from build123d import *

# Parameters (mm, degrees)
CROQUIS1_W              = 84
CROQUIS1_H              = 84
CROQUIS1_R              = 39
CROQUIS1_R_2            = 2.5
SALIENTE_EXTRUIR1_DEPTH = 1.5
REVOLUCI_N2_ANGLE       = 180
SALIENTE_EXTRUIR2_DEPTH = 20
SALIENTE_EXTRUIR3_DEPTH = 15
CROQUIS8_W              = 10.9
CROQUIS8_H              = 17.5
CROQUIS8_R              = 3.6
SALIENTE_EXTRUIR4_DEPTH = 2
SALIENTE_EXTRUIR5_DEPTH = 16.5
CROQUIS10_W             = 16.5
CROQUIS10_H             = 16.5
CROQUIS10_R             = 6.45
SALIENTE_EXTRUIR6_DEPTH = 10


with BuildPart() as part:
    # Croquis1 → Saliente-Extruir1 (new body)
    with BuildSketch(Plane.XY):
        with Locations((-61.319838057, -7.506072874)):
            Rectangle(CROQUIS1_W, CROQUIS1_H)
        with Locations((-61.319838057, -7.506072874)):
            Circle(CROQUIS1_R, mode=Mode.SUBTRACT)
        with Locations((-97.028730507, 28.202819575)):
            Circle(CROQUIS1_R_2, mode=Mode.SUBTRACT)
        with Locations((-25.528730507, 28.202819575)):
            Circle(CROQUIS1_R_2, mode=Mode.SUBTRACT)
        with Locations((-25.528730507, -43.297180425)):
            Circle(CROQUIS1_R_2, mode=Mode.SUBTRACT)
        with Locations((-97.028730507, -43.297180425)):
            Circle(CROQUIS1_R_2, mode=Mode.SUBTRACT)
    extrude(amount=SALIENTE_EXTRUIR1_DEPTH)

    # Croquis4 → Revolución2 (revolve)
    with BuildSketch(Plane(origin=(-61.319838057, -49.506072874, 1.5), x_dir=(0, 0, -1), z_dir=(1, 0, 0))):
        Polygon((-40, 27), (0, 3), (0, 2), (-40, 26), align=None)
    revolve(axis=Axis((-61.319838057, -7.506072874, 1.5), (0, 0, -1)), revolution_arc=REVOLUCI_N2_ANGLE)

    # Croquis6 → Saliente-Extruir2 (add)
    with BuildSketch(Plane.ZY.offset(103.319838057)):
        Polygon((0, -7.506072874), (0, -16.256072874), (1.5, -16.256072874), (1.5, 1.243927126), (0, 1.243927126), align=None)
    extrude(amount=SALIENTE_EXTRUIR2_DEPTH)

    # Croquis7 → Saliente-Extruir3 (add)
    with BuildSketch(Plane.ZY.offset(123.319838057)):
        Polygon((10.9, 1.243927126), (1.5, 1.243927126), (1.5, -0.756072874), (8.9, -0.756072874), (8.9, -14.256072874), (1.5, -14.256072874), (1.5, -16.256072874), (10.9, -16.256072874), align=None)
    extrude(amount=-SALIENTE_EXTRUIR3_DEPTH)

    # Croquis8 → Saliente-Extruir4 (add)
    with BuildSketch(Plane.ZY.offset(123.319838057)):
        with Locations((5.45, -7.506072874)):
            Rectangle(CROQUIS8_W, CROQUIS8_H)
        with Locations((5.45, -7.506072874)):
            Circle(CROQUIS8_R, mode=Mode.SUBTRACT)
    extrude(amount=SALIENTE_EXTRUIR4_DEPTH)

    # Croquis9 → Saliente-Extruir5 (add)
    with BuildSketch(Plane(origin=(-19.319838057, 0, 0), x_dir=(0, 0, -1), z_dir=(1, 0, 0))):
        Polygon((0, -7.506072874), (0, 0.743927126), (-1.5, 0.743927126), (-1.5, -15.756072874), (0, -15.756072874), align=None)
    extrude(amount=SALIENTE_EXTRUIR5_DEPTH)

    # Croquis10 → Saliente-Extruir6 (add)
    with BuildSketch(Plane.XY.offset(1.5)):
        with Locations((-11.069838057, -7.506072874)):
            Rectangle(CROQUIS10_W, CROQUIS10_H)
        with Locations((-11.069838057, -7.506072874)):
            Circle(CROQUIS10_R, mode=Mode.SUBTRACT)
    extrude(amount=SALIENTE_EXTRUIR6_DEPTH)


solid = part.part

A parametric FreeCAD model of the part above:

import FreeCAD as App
import Part
import Sketcher
from FreeCAD import Vector


def add_polygon(sketch, points):
    """Adds a closed chain of lines whose ends are joined by coincident constraints."""
    first, n = sketch.GeometryCount, len(points)
    for a, b in zip(points, points[1:] + points[:1]):
        sketch.addGeometry(Part.LineSegment(App.Vector(*a, 0), App.Vector(*b, 0)), False)
    for i in range(n):
        sketch.addConstraint(Sketcher.Constraint("Coincident", first + i, 2, first + (i + 1) % n, 1))

doc = App.newDocument("Part")
body = doc.addObject("PartDesign::Body", "Body")

# Sketch on XY plane
sketch1 = doc.addObject("Sketcher::SketchObject", "Sketch")
body.addObject(sketch1)
sketch1.AttachmentSupport = (doc.XY_Plane, [""])
sketch1.MapMode = "FlatFace"
add_polygon(sketch1, [(-103.3, 34.5), (-103.3, -49.5), (-19.3, -49.5), (-19.3, 34.5)])  # lines 0-3
sketch1.addGeometry(Part.Circle(Vector(-97, -43.3, 0), Vector(0, 0, 1), 2.5), False)  # 4
sketch1.addGeometry(Part.Circle(Vector(-25.5, -43.3, 0), Vector(0, 0, 1), 2.5), False)  # 5
sketch1.addGeometry(Part.Circle(Vector(-97, 28.2, 0), Vector(0, 0, 1), 2.5), False)  # 6
sketch1.addGeometry(Part.Circle(Vector(-61.3, -7.5, 0), Vector(0, 0, 1), 39), False)  # 7
sketch1.addGeometry(Part.Circle(Vector(-25.5, 28.2, 0), Vector(0, 0, 1), 2.5), False)  # 8
sketch1.addConstraint(Sketcher.Constraint("Vertical", 0))
sketch1.addConstraint(Sketcher.Constraint("Horizontal", 1))
sketch1.addConstraint(Sketcher.Constraint("Vertical", 2))
sketch1.addConstraint(Sketcher.Constraint("Horizontal", 3))
sketch1.addConstraint(Sketcher.Constraint("Equal", 4, 5))
sketch1.addConstraint(Sketcher.Constraint("Equal", 5, 6))
sketch1.addConstraint(Sketcher.Constraint("Equal", 6, 8))
sketch1.addConstraint(Sketcher.Constraint("Horizontal", 4, 3, 5, 3))
sketch1.addConstraint(Sketcher.Constraint("Horizontal", 6, 3, 8, 3))
sketch1.addConstraint(Sketcher.Constraint("Vertical", 4, 3, 6, 3))
sketch1.addConstraint(Sketcher.Constraint("Vertical", 5, 3, 8, 3))
sketch1.addConstraint(Sketcher.Constraint("Equal", 3, 0))
sketch1.addConstraint(Sketcher.Constraint("Diameter", 4, 5.0))
sketch1.addConstraint(Sketcher.Constraint("Diameter", 7, 78.0))
sketch1.addConstraint(Sketcher.Constraint("DistanceX", 1, 1, 1, 2, 84.0))
sketch1.addConstraint(Sketcher.Constraint("DistanceX", 0, 2, 7, 3, 42.0))
sketch1.addConstraint(Sketcher.Constraint("DistanceY", 0, 2, 7, 3, 42.0))
sketch1.addConstraint(Sketcher.Constraint("DistanceX", 4, 3, 5, 3, 71.5))
sketch1.addConstraint(Sketcher.Constraint("DistanceY", 4, 3, 6, 3, 71.5))
sketch1.addConstraint(Sketcher.Constraint("DistanceX", 4, 3, -1, 1, 97.028731))
sketch1.addConstraint(Sketcher.Constraint("DistanceY", 4, 3, -1, 1, 43.29718))
sketch1.addConstraint(Sketcher.Constraint("DistanceX", 7, 3, -1, 1, 61.319838))
sketch1.addConstraint(Sketcher.Constraint("DistanceY", 7, 3, -1, 1, 7.506073))
pad1 = doc.addObject("PartDesign::Pad", "Pad")
body.addObject(pad1)
pad1.Profile = sketch1
pad1.Length = 1.5

# Sketch on YZ plane
sketch2 = doc.addObject("Sketcher::SketchObject", "Sketch001")
body.addObject(sketch2)
sketch2.AttachmentSupport = (doc.YZ_Plane, [""])
sketch2.MapMode = "FlatFace"
sketch2.AttachmentOffset = App.Placement(Vector(0, 0, -61.319838), App.Rotation())
add_polygon(sketch2, [(-46.5, 1.5), (-22.5, 41.5), (-23.5, 41.5), (-47.5, 1.5)])  # lines 0-3
sketch2.addGeometry(Part.LineSegment(Vector(-7.5, 41.5, 0), Vector(-7.5, 1.5, 0)), True)  # axis
sketch2.addConstraint(Sketcher.Constraint("Horizontal", 1))
sketch2.addConstraint(Sketcher.Constraint("Horizontal", 3))
sketch2.addConstraint(Sketcher.Constraint("Vertical", 4))
sketch2.addConstraint(Sketcher.Constraint("Parallel", 0, 2))
sketch2.addConstraint(Sketcher.Constraint("Horizontal", 1, 2, 4, 1))
sketch2.addConstraint(Sketcher.Constraint("Horizontal", 3, 2, 4, 2))
sketch2.addConstraint(Sketcher.Constraint("DistanceX", 1, 2, 1, 1, 1.0))
sketch2.addConstraint(Sketcher.Constraint("DistanceY", 4, 2, 4, 1, 40.0))
sketch2.addConstraint(Sketcher.Constraint("DistanceX", 2, 2, 1, 2, 24.0))
sketch2.addConstraint(Sketcher.Constraint("DistanceX", 0, 2, 4, 1, 15.0))
sketch2.addConstraint(Sketcher.Constraint("DistanceY", -1, 1, 0, 2, 41.5))
sketch2.addConstraint(Sketcher.Constraint("DistanceX", 0, 2, -1, 1, 22.506073))
revolution = doc.addObject("PartDesign::Revolution", "Revolution")
body.addObject(revolution)
revolution.Profile = sketch2
revolution.ReferenceAxis = (sketch2, ["Axis0"])
revolution.Angle = 180

# Sketch on YZ plane
sketch3 = doc.addObject("Sketcher::SketchObject", "Sketch002")
body.addObject(sketch3)
sketch3.AttachmentSupport = (doc.YZ_Plane, [""])
sketch3.MapMode = "FlatFace"
sketch3.AttachmentOffset = App.Placement(Vector(0, 0, -103.319838), App.Rotation())
add_polygon(sketch3, [(-16.3, 0), (-16.3, 1.5), (1.2, 1.5), (1.2, 0)])  # lines 0-3
sketch3.addConstraint(Sketcher.Constraint("Vertical", 0))
sketch3.addConstraint(Sketcher.Constraint("Horizontal", 1))
sketch3.addConstraint(Sketcher.Constraint("Vertical", 2))
sketch3.addConstraint(Sketcher.Constraint("Horizontal", 3))
sketch3.addConstraint(Sketcher.Constraint("PointOnObject", 2, 2, -1))
sketch3.addConstraint(Sketcher.Constraint("DistanceX", 1, 1, 1, 2, 17.5))
sketch3.addConstraint(Sketcher.Constraint("DistanceY", 0, 1, 0, 2, 1.5))
sketch3.addConstraint(Sketcher.Constraint("DistanceX", 0, 2, -1, 1, 16.256073))
pad2 = doc.addObject("PartDesign::Pad", "Pad001")
body.addObject(pad2)
pad2.Profile = sketch3
pad2.Length = 20
pad2.Reversed = True

# Sketch on YZ plane
sketch4 = doc.addObject("Sketcher::SketchObject", "Sketch003")
body.addObject(sketch4)
sketch4.AttachmentSupport = (doc.YZ_Plane, [""])
sketch4.MapMode = "FlatFace"
sketch4.AttachmentOffset = App.Placement(Vector(0, 0, -123.319838), App.Rotation())
add_polygon(sketch4, [(1.2, 10.9), (1.2, 1.5), (-0.8, 1.5), (-0.8, 8.9), (-14.3, 8.9), (-14.3, 1.5), (-16.3, 1.5), (-16.3, 10.9)])  # lines 0-7
sketch4.addConstraint(Sketcher.Constraint("Vertical", 0))
sketch4.addConstraint(Sketcher.Constraint("Horizontal", 1))
sketch4.addConstraint(Sketcher.Constraint("Vertical", 2))
sketch4.addConstraint(Sketcher.Constraint("Horizontal", 3))
sketch4.addConstraint(Sketcher.Constraint("Vertical", 4))
sketch4.addConstraint(Sketcher.Constraint("Horizontal", 5))
sketch4.addConstraint(Sketcher.Constraint("Vertical", 6))
sketch4.addConstraint(Sketcher.Constraint("Horizontal", 7))
sketch4.addConstraint(Sketcher.Constraint("Horizontal", 1, 2, 4, 2))
sketch4.addConstraint(Sketcher.Constraint("Equal", 1, 5))
sketch4.addConstraint(Sketcher.Constraint("DistanceX", 1, 2, 1, 1, 2.0))
sketch4.addConstraint(Sketcher.Constraint("DistanceX", 3, 2, 3, 1, 13.5))
sketch4.addConstraint(Sketcher.Constraint("DistanceY", 0, 2, 0, 1, 9.4))
sketch4.addConstraint(Sketcher.Constraint("DistanceY", 2, 1, 2, 2, 7.4))
sketch4.addConstraint(Sketcher.Constraint("DistanceY", -1, 1, 0, 2, 1.5))
sketch4.addConstraint(Sketcher.Constraint("DistanceX", -1, 1, 0, 2, 1.243927))
pad3 = doc.addObject("PartDesign::Pad", "Pad002")
body.addObject(pad3)
pad3.Profile = sketch4
pad3.Length = 15

# Sketch on YZ plane
sketch5 = doc.addObject("Sketcher::SketchObject", "Sketch004")
body.addObject(sketch5)
sketch5.AttachmentSupport = (doc.YZ_Plane, [""])
sketch5.MapMode = "FlatFace"
sketch5.AttachmentOffset = App.Placement(Vector(0, 0, -123.319838), App.Rotation())
add_polygon(sketch5, [(1.2, 0), (-16.3, 0), (-16.3, 10.9), (1.2, 10.9)])  # lines 0-3
sketch5.addGeometry(Part.Circle(Vector(-7.5, 5.5, 0), Vector(0, 0, 1), 3.6), False)  # 4
sketch5.addConstraint(Sketcher.Constraint("Horizontal", 0))
sketch5.addConstraint(Sketcher.Constraint("Vertical", 1))
sketch5.addConstraint(Sketcher.Constraint("Horizontal", 2))
sketch5.addConstraint(Sketcher.Constraint("Vertical", 3))
sketch5.addConstraint(Sketcher.Constraint("PointOnObject", 0, 2, -1))
sketch5.addConstraint(Sketcher.Constraint("Diameter", 4, 7.2))
sketch5.addConstraint(Sketcher.Constraint("DistanceX", 0, 2, 0, 1, 17.5))
sketch5.addConstraint(Sketcher.Constraint("DistanceY", 1, 1, 1, 2, 10.9))
sketch5.addConstraint(Sketcher.Constraint("DistanceY", -1, 1, 4, 3, 5.45))
sketch5.addConstraint(Sketcher.Constraint("DistanceX", 0, 2, 4, 3, 8.75))
sketch5.addConstraint(Sketcher.Constraint("DistanceX", 4, 3, -1, 1, 7.506073))
pad4 = doc.addObject("PartDesign::Pad", "Pad003")
body.addObject(pad4)
pad4.Profile = sketch5
pad4.Length = 2
pad4.Reversed = True

# Sketch on YZ plane
sketch6 = doc.addObject("Sketcher::SketchObject", "Sketch005")
body.addObject(sketch6)
sketch6.AttachmentSupport = (doc.YZ_Plane, [""])
sketch6.MapMode = "FlatFace"
sketch6.AttachmentOffset = App.Placement(Vector(0, 0, -19.319838), App.Rotation())
add_polygon(sketch6, [(0.7, 0), (0.7, 1.5), (-15.8, 1.5), (-15.8, 0)])  # lines 0-3
sketch6.addConstraint(Sketcher.Constraint("Vertical", 0))
sketch6.addConstraint(Sketcher.Constraint("Horizontal", 1))
sketch6.addConstraint(Sketcher.Constraint("Vertical", 2))
sketch6.addConstraint(Sketcher.Constraint("Horizontal", 3))
sketch6.addConstraint(Sketcher.Constraint("PointOnObject", 2, 2, -1))
sketch6.addConstraint(Sketcher.Constraint("DistanceX", 1, 2, 1, 1, 16.5))
sketch6.addConstraint(Sketcher.Constraint("DistanceY", 0, 1, 0, 2, 1.5))
sketch6.addConstraint(Sketcher.Constraint("DistanceX", -1, 1, 0, 2, 0.743927))
pad5 = doc.addObject("PartDesign::Pad", "Pad004")
body.addObject(pad5)
pad5.Profile = sketch6
pad5.Length = 16.5

# Sketch on XY plane
sketch7 = doc.addObject("Sketcher::SketchObject", "Sketch006")
body.addObject(sketch7)
sketch7.AttachmentSupport = (doc.XY_Plane, [""])
sketch7.MapMode = "FlatFace"
sketch7.AttachmentOffset = App.Placement(Vector(0, 0, 1.5), App.Rotation())
add_polygon(sketch7, [(-19, 1), (-19, -16), (-3, -16), (-3, 1)])  # lines 0-3
sketch7.addGeometry(Part.Circle(Vector(-11, -8, 0), Vector(0, 0, 1), 6), False)  # 4
sketch7.addConstraint(Sketcher.Constraint("Vertical", 0))
sketch7.addConstraint(Sketcher.Constraint("Horizontal", 1))
sketch7.addConstraint(Sketcher.Constraint("Vertical", 2))
sketch7.addConstraint(Sketcher.Constraint("Horizontal", 3))
sketch7.addConstraint(Sketcher.Constraint("Equal", 3, 0))
sketch7.addConstraint(Sketcher.Constraint("Diameter", 4, 12.9))
sketch7.addConstraint(Sketcher.Constraint("DistanceX", 1, 1, 1, 2, 16.5))
sketch7.addConstraint(Sketcher.Constraint("DistanceX", 0, 2, 4, 3, 8.25))
sketch7.addConstraint(Sketcher.Constraint("DistanceY", 0, 2, 4, 3, 8.25))
sketch7.addConstraint(Sketcher.Constraint("DistanceX", 4, 3, -1, 1, 11.069838))
sketch7.addConstraint(Sketcher.Constraint("DistanceY", 4, 3, -1, 1, 7.506073))
pad6 = doc.addObject("PartDesign::Pad", "Pad005")
body.addObject(pad6)
pad6.Profile = sketch7
pad6.Length = 10

doc.recompute()
